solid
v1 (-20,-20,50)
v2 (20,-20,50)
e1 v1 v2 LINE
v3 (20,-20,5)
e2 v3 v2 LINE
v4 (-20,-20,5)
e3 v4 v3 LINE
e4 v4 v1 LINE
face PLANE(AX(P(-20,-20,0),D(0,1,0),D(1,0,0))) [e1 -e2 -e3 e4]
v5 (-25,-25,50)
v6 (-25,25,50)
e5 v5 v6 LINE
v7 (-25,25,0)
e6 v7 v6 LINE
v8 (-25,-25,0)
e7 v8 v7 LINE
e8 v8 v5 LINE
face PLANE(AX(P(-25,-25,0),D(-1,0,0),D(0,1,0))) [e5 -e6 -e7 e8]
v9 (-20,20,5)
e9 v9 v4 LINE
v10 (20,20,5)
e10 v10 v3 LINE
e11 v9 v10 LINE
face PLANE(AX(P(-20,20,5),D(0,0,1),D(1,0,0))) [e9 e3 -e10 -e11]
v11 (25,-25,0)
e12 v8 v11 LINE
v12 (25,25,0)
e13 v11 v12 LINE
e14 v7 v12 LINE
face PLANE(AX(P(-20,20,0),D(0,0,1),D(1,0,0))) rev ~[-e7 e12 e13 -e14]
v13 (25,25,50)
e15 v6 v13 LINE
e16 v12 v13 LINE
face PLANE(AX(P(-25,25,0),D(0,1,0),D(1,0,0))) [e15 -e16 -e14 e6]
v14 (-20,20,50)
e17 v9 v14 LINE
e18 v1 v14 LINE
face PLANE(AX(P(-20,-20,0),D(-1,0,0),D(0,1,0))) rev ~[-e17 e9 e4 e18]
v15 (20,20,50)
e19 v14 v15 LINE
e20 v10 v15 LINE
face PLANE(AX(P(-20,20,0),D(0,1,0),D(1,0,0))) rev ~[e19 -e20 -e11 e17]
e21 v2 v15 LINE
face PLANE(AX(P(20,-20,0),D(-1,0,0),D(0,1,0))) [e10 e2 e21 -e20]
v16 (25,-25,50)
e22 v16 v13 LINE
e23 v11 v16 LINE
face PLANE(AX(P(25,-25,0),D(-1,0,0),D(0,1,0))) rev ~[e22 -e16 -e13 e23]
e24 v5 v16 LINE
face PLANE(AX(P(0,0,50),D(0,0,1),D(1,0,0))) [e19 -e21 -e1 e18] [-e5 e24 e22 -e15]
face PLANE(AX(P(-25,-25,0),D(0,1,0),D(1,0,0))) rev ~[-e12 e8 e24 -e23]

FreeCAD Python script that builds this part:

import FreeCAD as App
import Part
import Sketcher

V = App.Vector
Q = App.Units.Quantity

doc = App.newDocument("Part")
body = doc.addObject("PartDesign::Body", "Body")

# Sketch on XY plane
sketch1 = body.newObject("Sketcher::SketchObject", "Sketch")
sketch1.AttachmentSupport = (doc.getObject("XY_Plane"), [""])
sketch1.MapMode = "FlatFace"
sketch1.addGeometry(Part.LineSegment(V(-25, 25, 0), V(-25, -25, 0)), False)
sketch1.addGeometry(Part.LineSegment(V(-25, -25, 0), V(25, -25, 0)), False)
sketch1.addGeometry(Part.LineSegment(V(25, -25, 0), V(25, 25, 0)), False)
sketch1.addGeometry(Part.LineSegment(V(25, 25, 0), V(-25, 25, 0)), False)
sketch1.addGeometry(Part.LineSegment(V(20, -20, 0), V(-20, -20, 0)), False)
sketch1.addGeometry(Part.LineSegment(V(-20, -20, 0), V(-20, 20, 0)), False)
sketch1.addGeometry(Part.LineSegment(V(-20, 20, 0), V(20, 20, 0)), False)
sketch1.addGeometry(Part.LineSegment(V(20, 20, 0), V(20, -20, 0)), False)
sketch1.addConstraint(Sketcher.Constraint("Coincident", 0, 2, 1, 1))
sketch1.addConstraint(Sketcher.Constraint("Coincident", 1, 2, 2, 1))
sketch1.addConstraint(Sketcher.Constraint("Coincident", 2, 2, 3, 1))
sketch1.addConstraint(Sketcher.Constraint("Coincident", 3, 2, 0, 1))
sketch1.addConstraint(Sketcher.Constraint("Coincident", 4, 2, 5, 1))
sketch1.addConstraint(Sketcher.Constraint("Coincident", 5, 2, 6, 1))
sketch1.addConstraint(Sketcher.Constraint("Coincident", 6, 2, 7, 1))
sketch1.addConstraint(Sketcher.Constraint("Coincident", 7, 2, 4, 1))
sketch1.addConstraint(Sketcher.Constraint("Vertical", 0))
sketch1.addConstraint(Sketcher.Constraint("Horizontal", 1))
sketch1.addConstraint(Sketcher.Constraint("Vertical", 2))
sketch1.addConstraint(Sketcher.Constraint("Horizontal", 3))
sketch1.addConstraint(Sketcher.Constraint("Horizontal", 4))
sketch1.addConstraint(Sketcher.Constraint("Vertical", 5))
sketch1.addConstraint(Sketcher.Constraint("Horizontal", 6))
sketch1.addConstraint(Sketcher.Constraint("Vertical", 7))
sketch1.addConstraint(Sketcher.Constraint("Symmetric", 0, 2, 2, 2, -1, 1))
sketch1.addConstraint(Sketcher.Constraint("Symmetric", 4, 2, 6, 2, -1, 1))
sketch1.addConstraint(Sketcher.Constraint("Equal", 3, 0))
sketch1.addConstraint(Sketcher.Constraint("Equal", 6, 5))
sketch1.addConstraint(Sketcher.Constraint("DistanceX", 1, 1, 1, 2, Q("50 mm")))
sketch1.addConstraint(Sketcher.Constraint("DistanceX", 4, 2, 4, 1, Q("40 mm")))
pad1 = body.newObject("PartDesign::Pad", "Pad")
pad1.Profile = sketch1
pad1.Length = 50

# Sketch on XZ plane
sketch2 = body.newObject("Sketcher::SketchObject", "Sketch001")
sketch2.AttachmentSupport = (doc.getObject("XZ_Plane"), [""])
sketch2.MapMode = "FlatFace"
sketch2.AttachmentOffset = App.Placement(V(0, 0, -20), App.Rotation())
sketch2.addGeometry(Part.LineSegment(V(-20, 5, 0), V(-20, 0, 0)), False)
sketch2.addGeometry(Part.LineSegment(V(-20, 0, 0), V(20, 0, 0)), False)
sketch2.addGeometry(Part.LineSegment(V(20, 0, 0), V(20, 5, 0)), False)
sketch2.addGeometry(Part.LineSegment(V(20, 5, 0), V(-20, 5, 0)), False)
sketch2.addConstraint(Sketcher.Constraint("Coincident", 0, 2, 1, 1))
sketch2.addConstraint(Sketcher.Constraint("Coincident", 1, 2, 2, 1))
sketch2.addConstraint(Sketcher.Constraint("Coincident", 2, 2, 3, 1))
sketch2.addConstraint(Sketcher.Constraint("Coincident", 3, 2, 0, 1))
sketch2.addConstraint(Sketcher.Constraint("Vertical", 0))
sketch2.addConstraint(Sketcher.Constraint("Horizontal", 1))
sketch2.addConstraint(Sketcher.Constraint("Vertical", 2))
sketch2.addConstraint(Sketcher.Constraint("Horizontal", 3))
sketch2.addConstraint(Sketcher.Constraint("Symmetric", 0, 2, 1, 2, -1, 1))
sketch2.addConstraint(Sketcher.Constraint("DistanceX", 1, 1, 1, 2, Q("40 mm")))
sketch2.addConstraint(Sketcher.Constraint("DistanceY", 0, 2, 0, 1, Q("5 mm")))
pad2 = body.newObject("PartDesign::Pad", "Pad001")
pad2.Profile = sketch2
pad2.Length = 40

doc.recompute()
